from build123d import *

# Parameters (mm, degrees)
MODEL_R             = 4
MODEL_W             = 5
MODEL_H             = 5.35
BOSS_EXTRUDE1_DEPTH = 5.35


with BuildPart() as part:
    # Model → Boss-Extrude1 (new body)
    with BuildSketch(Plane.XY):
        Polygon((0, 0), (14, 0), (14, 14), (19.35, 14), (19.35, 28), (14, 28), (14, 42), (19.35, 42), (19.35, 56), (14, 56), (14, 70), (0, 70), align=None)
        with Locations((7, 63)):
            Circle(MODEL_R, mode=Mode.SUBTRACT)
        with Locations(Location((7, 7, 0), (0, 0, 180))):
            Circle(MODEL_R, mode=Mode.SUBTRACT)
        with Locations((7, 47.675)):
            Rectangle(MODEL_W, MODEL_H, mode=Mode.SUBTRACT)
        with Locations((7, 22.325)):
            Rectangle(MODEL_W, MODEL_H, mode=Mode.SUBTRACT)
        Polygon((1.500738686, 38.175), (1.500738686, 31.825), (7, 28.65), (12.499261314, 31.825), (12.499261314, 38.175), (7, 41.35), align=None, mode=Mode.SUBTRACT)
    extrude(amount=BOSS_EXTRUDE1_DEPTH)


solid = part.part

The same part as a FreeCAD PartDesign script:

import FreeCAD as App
import Part
import Sketcher
Q = App.Units.Quantity

doc = App.newDocument("Part")
body = doc.addObject("PartDesign::Body", "Body")

sketch1 = body.newObject("Sketcher::SketchObject", "Sketch")
sketch1.AttachmentSupport = (doc.getObject("XY_Plane"), [""])
sketch1.MapMode = "FlatFace"
sketch1.addGeometry(Part.LineSegment(App.Vector(0, 0, 0), App.Vector(14, 0, 0)), False)
sketch1.addGeometry(Part.LineSegment(App.Vector(14, 0, 0), App.Vector(14, 14, 0)), False)
sketch1.addGeometry(Part.LineSegment(App.Vector(14, 14, 0), App.Vector(19.4, 14, 0)), False)
sketch1.addGeometry(Part.LineSegment(App.Vector(19.4, 14, 0), App.Vector(19.4, 28, 0)), False)
sketch1.addGeometry(Part.LineSegment(App.Vector(19.4, 28, 0), App.Vector(14, 28, 0)), False)
sketch1.addGeometry(Part.LineSegment(App.Vector(14, 28, 0), App.Vector(14, 42, 0)), False)
sketch1.addGeometry(Part.LineSegment(App.Vector(14, 42, 0), App.Vector(19.4, 42, 0)), False)
sketch1.addGeometry(Part.LineSegment(App.Vector(19.4, 42, 0), App.Vector(19.4, 56, 0)), False)
sketch1.addGeometry(Part.LineSegment(App.Vector(19.4, 56, 0), App.Vector(14, 56, 0)), False)
sketch1.addGeometry(Part.LineSegment(App.Vector(14, 56, 0), App.Vector(14, 70, 0)), False)
sketch1.addGeometry(Part.LineSegment(App.Vector(14, 70, 0), App.Vector(0, 70, 0)), False)
sketch1.addGeometry(Part.LineSegment(App.Vector(0, 70, 0), App.Vector(0, 0, 0)), False)
sketch1.addGeometry(Part.Circle(App.Vector(7, 7, 0), App.Vector(0, 0, 1), 4), False)
sketch1.addGeometry(Part.LineSegment(App.Vector(9.5, 19.6, 0), App.Vector(4.5, 19.6, 0)), False)
sketch1.addGeometry(Part.LineSegment(App.Vector(4.5, 19.6, 0), App.Vector(4.5, 25, 0)), False)
sketch1.addGeometry(Part.LineSegment(App.Vector(4.5, 25, 0), App.Vector(9.5, 25, 0)), False)
sketch1.addGeometry(Part.LineSegment(App.Vector(9.5, 25, 0), App.Vector(9.5, 19.6, 0)), False)
sketch1.addGeometry(Part.LineSegment(App.Vector(1.5, 31.8, 0), App.Vector(1.5, 38.2, 0)), False)
sketch1.addGeometry(Part.LineSegment(App.Vector(1.5, 38.2, 0), App.Vector(7, 41.4, 0)), False)
sketch1.addGeometry(Part.LineSegment(App.Vector(7, 41.4, 0), App.Vector(12.5, 38.2, 0)), False)
sketch1.addGeometry(Part.LineSegment(App.Vector(12.5, 38.2, 0), App.Vector(12.5, 31.8, 0)), False)
sketch1.addGeometry(Part.LineSegment(App.Vector(12.5, 31.8, 0), App.Vector(7, 28.6, 0)), False)
sketch1.addGeometry(Part.LineSegment(App.Vector(7, 28.6, 0), App.Vector(1.5, 31.8, 0)), False)
sketch1.addGeometry(Part.LineSegment(App.Vector(9.5, 45, 0), App.Vector(4.5, 45, 0)), False)
sketch1.addGeometry(Part.LineSegment(App.Vector(4.5, 45, 0), App.Vector(4.5, 50.4, 0)), False)
sketch1.addGeometry(Part.LineSegment(App.Vector(4.5, 50.4, 0), App.Vector(9.5, 50.4, 0)), False)
sketch1.addGeometry(Part.LineSegment(App.Vector(9.5, 50.4, 0), App.Vector(9.5, 45, 0)), False)
sketch1.addGeometry(Part.Circle(App.Vector(7, 63, 0), App.Vector(0, 0, 1), 4), False)
sketch1.addConstraint(Sketcher.Constraint("Coincident", 0, 2, 1, 1))
sketch1.addConstraint(Sketcher.Constraint("Coincident", 1, 2, 2, 1))
sketch1.addConstraint(Sketcher.Constraint("Coincident", 2, 2, 3, 1))
sketch1.addConstraint(Sketcher.Constraint("Coincident", 3, 2, 4, 1))
sketch1.addConstraint(Sketcher.Constraint("Coincident", 4, 2, 5, 1))
sketch1.addConstraint(Sketcher.Constraint("Coincident", 5, 2, 6, 1))
sketch1.addConstraint(Sketcher.Constraint("Coincident", 6, 2, 7, 1))
sketch1.addConstraint(Sketcher.Constraint("Coincident", 7, 2, 8, 1))
sketch1.addConstraint(Sketcher.Constraint("Coincident", 8, 2, 9, 1))
sketch1.addConstraint(Sketcher.Constraint("Coincident", 9, 2, 10, 1))
sketch1.addConstraint(Sketcher.Constraint("Coincident", 10, 2, 11, 1))
sketch1.addConstraint(Sketcher.Constraint("Coincident", 11, 2, 0, 1))
sketch1.addConstraint(Sketcher.Constraint("Coincident", 13, 2, 14, 1))
sketch1.addConstraint(Sketcher.Constraint("Coincident", 14, 2, 15, 1))
sketch1.addConstraint(Sketcher.Constraint("Coincident", 15, 2, 16, 1))
sketch1.addConstraint(Sketcher.Constraint("Coincident", 16, 2, 13, 1))
sketch1.addConstraint(Sketcher.Constraint("Coincident", 17, 2, 18, 1))
sketch1.addConstraint(Sketcher.Constraint("Coincident", 18, 2, 19, 1))
sketch1.addConstraint(Sketcher.Constraint("Coincident", 19, 2, 20, 1))
sketch1.addConstraint(Sketcher.Constraint("Coincident", 20, 2, 21, 1))
sketch1.addConstraint(Sketcher.Constraint("Coincident", 21, 2, 22, 1))
sketch1.addConstraint(Sketcher.Constraint("Coincident", 22, 2, 17, 1))
sketch1.addConstraint(Sketcher.Constraint("Coincident", 23, 2, 24, 1))
sketch1.addConstraint(Sketcher.Constraint("Coincident", 24, 2, 25, 1))
sketch1.addConstraint(Sketcher.Constraint("Coincident", 25, 2, 26, 1))
sketch1.addConstraint(Sketcher.Constraint("Coincident", 26, 2, 23, 1))
sketch1.addConstraint(Sketcher.Constraint("Horizontal", 0))
sketch1.addConstraint(Sketcher.Constraint("Vertical", 1))
sketch1.addConstraint(Sketcher.Constraint("Horizontal", 2))
sketch1.addConstraint(Sketcher.Constraint("Vertical", 3))
sketch1.addConstraint(Sketcher.Constraint("Horizontal", 4))
sketch1.addConstraint(Sketcher.Constraint("Vertical", 5))
sketch1.addConstraint(Sketcher.Constraint("Horizontal", 6))
sketch1.addConstraint(Sketcher.Constraint("Vertical", 7))
sketch1.addConstraint(Sketcher.Constraint("Horizontal", 8))
sketch1.addConstraint(Sketcher.Constraint("Vertical", 9))
sketch1.addConstraint(Sketcher.Constraint("Horizontal", 10))
sketch1.addConstraint(Sketcher.Constraint("Vertical", 11))
sketch1.addConstraint(Sketcher.Constraint("Horizontal", 13))
sketch1.addConstraint(Sketcher.Constraint("Vertical", 14))
sketch1.addConstraint(Sketcher.Constraint("Horizontal", 15))
sketch1.addConstraint(Sketcher.Constraint("Vertical", 16))
sketch1.addConstraint(Sketcher.Constraint("Vertical", 17))
sketch1.addConstraint(Sketcher.Constraint("Vertical", 20))
sketch1.addConstraint(Sketcher.Constraint("Horizontal", 23))
sketch1.addConstraint(Sketcher.Constraint("Vertical", 24))
sketch1.addConstraint(Sketcher.Constraint("Horizontal", 25))
sketch1.addConstraint(Sketcher.Constraint("Vertical", 26))
sketch1.addConstraint(Sketcher.Constraint("Coincident", 11, 2, -1, 1))
sketch1.addConstraint(Sketcher.Constraint("Equal", 12, 27))
sketch1.addConstraint(Sketcher.Constraint("Parallel", 18, 21))
sketch1.addConstraint(Sketcher.Constraint("Parallel", 19, 22))
sketch1.addConstraint(Sketcher.Constraint("Horizontal", 17, 2, 19, 2))
sketch1.addConstraint(Sketcher.Constraint("Horizontal", 20, 2, 22, 2))
sketch1.addConstraint(Sketcher.Constraint("Vertical", 12, 3, 27, 3))
sketch1.addConstraint(Sketcher.Constraint("Vertical", 1, 2, 4, 2))
sketch1.addConstraint(Sketcher.Constraint("Vertical", 3, 2, 6, 2))
sketch1.addConstraint(Sketcher.Constraint("Vertical", 5, 2, 8, 2))
sketch1.addConstraint(Sketcher.Constraint("Vertical", 27, 3, 18, 2))
sketch1.addConstraint(Sketcher.Constraint("Vertical", 18, 2, 21, 2))
sketch1.addConstraint(Sketcher.Constraint("Vertical", 14, 2, 23, 2))
sketch1.addConstraint(Sketcher.Constraint("Vertical", 16, 2, 25, 2))
sketch1.addConstraint(Sketcher.Constraint("Equal", 10, 1))
sketch1.addConstraint(Sketcher.Constraint("Equal", 1, 3))
sketch1.addConstraint(Sketcher.Constraint("Equal", 3, 5))
sketch1.addConstraint(Sketcher.Constraint("Equal", 5, 7))
sketch1.addConstraint(Sketcher.Constraint("Equal", 7, 9))
sketch1.addConstraint(Sketcher.Constraint("Equal", 8, 14))
sketch1.addConstraint(Sketcher.Constraint("Equal", 16, 24))
sketch1.addConstraint(Sketcher.Constraint("Diameter", 12, Q("8 mm")))
sketch1.addConstraint(Sketcher.Constraint("DistanceX", 0, 1, 0, 2, Q("14 mm")))
sketch1.addConstraint(Sketcher.Constraint("DistanceX", 13, 2, 13, 1, Q("5 mm")))
sketch1.addConstraint(Sketcher.Constraint("Angle", 18, Q("30 deg")))
sketch1.addConstraint(Sketcher.Constraint("DistanceX", -1, 1, 12, 3, Q("7 mm")))
sketch1.addConstraint(Sketcher.Constraint("DistanceY", -1, 1, 12, 3, Q("7 mm")))
sketch1.addConstraint(Sketcher.Constraint("DistanceY", -1, 1, 27, 3, Q("63 mm")))
sketch1.addConstraint(Sketcher.Constraint("DistanceY", -1, 1, 14, 2, Q("25 mm")))
sketch1.addConstraint(Sketcher.Constraint("DistanceY", -1, 1, 23, 2, Q("45 mm")))
sketch1.addConstraint(Sketcher.Constraint("DistanceY", 13, 2, 21, 2, Q("9 mm")))
sketch1.addConstraint(Sketcher.Constraint("DistanceY", 18, 2, 24, 2, Q("9 mm")))
sketch1.addConstraint(Sketcher.Constraint("DistanceX", 2, 1, 2, 2, Q("5.35 mm")))
sketch1.addConstraint(Sketcher.Constraint("DistanceY", 17, 1, 17, 2, Q("6.35 mm")))
sketch1.addConstraint(Sketcher.Constraint("DistanceX", -1, 1, 13, 2, Q("4.5 mm")))
pad1 = body.newObject("PartDesign::Pad", "Pad")
pad1.Profile = sketch1
pad1.Length = 5.35

doc.recompute()
